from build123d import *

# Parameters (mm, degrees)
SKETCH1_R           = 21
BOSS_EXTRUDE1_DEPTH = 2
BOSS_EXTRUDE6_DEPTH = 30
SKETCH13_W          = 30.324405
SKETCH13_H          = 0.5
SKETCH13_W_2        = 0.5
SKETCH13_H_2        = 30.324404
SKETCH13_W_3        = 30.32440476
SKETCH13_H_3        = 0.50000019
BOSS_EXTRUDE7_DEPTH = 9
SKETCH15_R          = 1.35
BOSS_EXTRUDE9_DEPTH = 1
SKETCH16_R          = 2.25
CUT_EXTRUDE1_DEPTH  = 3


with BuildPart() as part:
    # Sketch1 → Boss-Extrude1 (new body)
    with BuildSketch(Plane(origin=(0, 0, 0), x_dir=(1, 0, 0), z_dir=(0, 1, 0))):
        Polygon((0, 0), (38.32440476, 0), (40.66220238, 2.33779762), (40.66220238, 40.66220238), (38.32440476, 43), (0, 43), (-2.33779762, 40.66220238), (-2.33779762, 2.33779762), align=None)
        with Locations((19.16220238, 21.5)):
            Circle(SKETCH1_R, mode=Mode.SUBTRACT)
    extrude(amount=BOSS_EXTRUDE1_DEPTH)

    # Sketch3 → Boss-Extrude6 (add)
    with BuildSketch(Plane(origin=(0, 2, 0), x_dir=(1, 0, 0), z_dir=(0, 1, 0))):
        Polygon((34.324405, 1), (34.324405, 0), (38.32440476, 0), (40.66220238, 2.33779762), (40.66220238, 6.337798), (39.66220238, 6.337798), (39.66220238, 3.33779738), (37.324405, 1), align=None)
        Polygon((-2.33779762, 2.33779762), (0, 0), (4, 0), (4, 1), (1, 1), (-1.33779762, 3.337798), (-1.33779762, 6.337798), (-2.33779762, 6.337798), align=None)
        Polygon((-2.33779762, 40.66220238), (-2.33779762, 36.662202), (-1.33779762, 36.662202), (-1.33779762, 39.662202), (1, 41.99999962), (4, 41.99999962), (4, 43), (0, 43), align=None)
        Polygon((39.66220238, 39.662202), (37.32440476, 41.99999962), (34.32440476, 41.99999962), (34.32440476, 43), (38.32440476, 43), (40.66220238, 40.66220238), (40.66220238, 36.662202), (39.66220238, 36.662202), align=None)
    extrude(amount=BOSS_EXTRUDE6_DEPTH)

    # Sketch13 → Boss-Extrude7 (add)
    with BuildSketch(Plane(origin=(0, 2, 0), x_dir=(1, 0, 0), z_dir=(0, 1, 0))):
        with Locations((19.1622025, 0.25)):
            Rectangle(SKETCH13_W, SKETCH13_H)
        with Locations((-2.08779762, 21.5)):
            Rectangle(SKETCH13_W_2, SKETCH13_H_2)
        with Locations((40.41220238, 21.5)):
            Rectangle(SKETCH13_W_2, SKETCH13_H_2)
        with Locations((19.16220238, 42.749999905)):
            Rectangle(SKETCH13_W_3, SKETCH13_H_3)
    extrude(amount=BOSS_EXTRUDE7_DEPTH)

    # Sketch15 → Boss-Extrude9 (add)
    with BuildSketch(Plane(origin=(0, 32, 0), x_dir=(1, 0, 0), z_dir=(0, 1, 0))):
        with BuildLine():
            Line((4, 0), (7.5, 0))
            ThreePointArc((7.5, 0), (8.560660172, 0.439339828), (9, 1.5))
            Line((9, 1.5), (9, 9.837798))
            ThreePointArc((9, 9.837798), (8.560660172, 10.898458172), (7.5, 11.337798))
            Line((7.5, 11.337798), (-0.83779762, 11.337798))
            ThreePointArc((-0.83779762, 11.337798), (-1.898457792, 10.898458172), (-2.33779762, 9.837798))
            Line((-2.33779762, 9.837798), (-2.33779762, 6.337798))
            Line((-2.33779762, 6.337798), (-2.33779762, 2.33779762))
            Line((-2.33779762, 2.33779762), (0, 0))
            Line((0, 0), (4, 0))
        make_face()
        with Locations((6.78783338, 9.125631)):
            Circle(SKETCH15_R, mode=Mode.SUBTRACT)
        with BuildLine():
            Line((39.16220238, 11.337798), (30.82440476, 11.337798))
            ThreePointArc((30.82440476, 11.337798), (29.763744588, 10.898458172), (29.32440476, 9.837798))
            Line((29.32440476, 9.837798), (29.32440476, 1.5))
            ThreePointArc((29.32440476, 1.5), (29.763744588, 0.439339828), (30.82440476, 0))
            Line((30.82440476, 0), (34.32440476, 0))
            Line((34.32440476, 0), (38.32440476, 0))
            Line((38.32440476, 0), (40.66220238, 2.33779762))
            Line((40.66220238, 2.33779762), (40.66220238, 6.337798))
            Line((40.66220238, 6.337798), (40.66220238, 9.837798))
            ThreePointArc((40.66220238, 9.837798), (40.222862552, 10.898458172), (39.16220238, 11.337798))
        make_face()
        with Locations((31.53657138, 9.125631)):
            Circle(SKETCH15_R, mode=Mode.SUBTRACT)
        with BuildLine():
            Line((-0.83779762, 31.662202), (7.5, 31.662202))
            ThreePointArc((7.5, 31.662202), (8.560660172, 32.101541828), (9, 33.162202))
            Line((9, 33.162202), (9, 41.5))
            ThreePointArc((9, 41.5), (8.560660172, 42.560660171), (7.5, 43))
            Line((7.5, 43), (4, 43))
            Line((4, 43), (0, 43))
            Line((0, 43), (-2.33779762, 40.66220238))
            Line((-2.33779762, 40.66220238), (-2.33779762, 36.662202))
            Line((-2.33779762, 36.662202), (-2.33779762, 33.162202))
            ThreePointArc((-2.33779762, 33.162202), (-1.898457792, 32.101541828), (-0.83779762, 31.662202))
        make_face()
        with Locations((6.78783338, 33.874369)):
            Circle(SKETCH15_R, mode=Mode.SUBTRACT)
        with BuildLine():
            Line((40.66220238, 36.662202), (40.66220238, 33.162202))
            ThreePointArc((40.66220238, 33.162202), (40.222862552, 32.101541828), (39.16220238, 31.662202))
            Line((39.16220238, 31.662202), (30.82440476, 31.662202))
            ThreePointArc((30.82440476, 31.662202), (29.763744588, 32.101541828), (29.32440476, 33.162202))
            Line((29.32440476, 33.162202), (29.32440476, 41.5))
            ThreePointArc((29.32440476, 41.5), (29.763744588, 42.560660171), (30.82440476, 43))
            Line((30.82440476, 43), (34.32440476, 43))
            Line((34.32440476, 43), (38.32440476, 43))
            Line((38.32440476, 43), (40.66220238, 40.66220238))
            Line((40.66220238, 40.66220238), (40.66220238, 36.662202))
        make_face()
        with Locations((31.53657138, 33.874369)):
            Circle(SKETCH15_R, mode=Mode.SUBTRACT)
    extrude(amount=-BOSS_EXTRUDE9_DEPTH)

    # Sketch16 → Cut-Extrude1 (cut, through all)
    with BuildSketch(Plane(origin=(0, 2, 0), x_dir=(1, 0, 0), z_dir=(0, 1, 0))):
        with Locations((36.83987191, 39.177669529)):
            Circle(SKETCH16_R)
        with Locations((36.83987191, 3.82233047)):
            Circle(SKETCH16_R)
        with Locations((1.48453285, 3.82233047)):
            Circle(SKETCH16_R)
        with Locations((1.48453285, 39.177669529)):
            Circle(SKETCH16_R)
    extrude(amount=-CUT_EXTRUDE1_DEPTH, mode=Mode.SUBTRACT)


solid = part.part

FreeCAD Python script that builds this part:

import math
import FreeCAD as App
import Part
import Sketcher

V = App.Vector
Q = App.Units.Quantity

doc = App.newDocument("Part")
params = doc.addObject("Spreadsheet::Sheet", "Params")
for row, (alias, value) in enumerate([
    ("sketch1_diameter", "42 mm"),
    ("pad1_length", "2 mm"),
    ("sketch2_width", "4 mm"),
    ("sketch2_width2", "1 mm"),
    ("pad2_length", "30 mm"),
    ("sketch3_width", "0.5 mm"),
    ("pad3_length", "9 mm"),
    ("sketch4_diameter", "2.7 mm"),
    ("sketch4_radius", "1.5 mm"),
    ("sketch4_width", "7.5 mm"),
    ("pad4_length", "1 mm"),
    ("sketch5_diameter", "4.5 mm"),
], start=1):
    params.set(f"A{row}", alias)
    params.set(f"B{row}", "=" + value)
    params.setAlias(f"B{row}", alias)

body = doc.addObject("PartDesign::Body", "Body")

# Sketch on XZ plane
sketch1 = doc.addObject("Sketcher::SketchObject", "Sketch")
body.addObject(sketch1)
sketch1.AttachmentSupport = (doc.XZ_Plane, [""])
sketch1.MapMode = "FlatFace"
sketch1.addGeometry([
    Part.LineSegment(V(0, 0, 0), V(38.324405, 0, 0)),  # 0
    Part.LineSegment(V(38.324405, 0, 0), V(40.662202, -2.337798, 0)),  # 1
    Part.LineSegment(V(40.662202, -2.337798, 0), V(40.662202, -40.662202, 0)),  # 2
    Part.LineSegment(V(40.662202, -40.662202, 0), V(38.324405, -43, 0)),  # 3
    Part.LineSegment(V(38.324405, -43, 0), V(0, -43, 0)),  # 4
    Part.LineSegment(V(0, -43, 0), V(-2.337798, -40.662202, 0)),  # 5
    Part.LineSegment(V(-2.337798, -40.662202, 0), V(-2.337798, -2.337798, 0)),  # 6
    Part.LineSegment(V(-2.337798, -2.337798, 0), V(0, 0, 0)),  # 7
    Part.Circle(V(19.162202, -21.5, 0), V(0, 0, 1), 21),  # 8
], False)
sketch1.addConstraint([
    Sketcher.Constraint("Coincident", 0, 2, 1, 1),
    Sketcher.Constraint("Coincident", 1, 2, 2, 1),
    Sketcher.Constraint("Coincident", 2, 2, 3, 1),
    Sketcher.Constraint("Coincident", 3, 2, 4, 1),
    Sketcher.Constraint("Coincident", 4, 2, 5, 1),
    Sketcher.Constraint("Coincident", 5, 2, 6, 1),
    Sketcher.Constraint("Coincident", 6, 2, 7, 1),
    Sketcher.Constraint("Coincident", 7, 2, 0, 1),
    Sketcher.Constraint("Horizontal", 0),
    Sketcher.Constraint("Vertical", 2),
    Sketcher.Constraint("Horizontal", 4),
    Sketcher.Constraint("Vertical", 6),
    Sketcher.Constraint("Coincident", 7, 2, -1, 1),
    Sketcher.Constraint("PointOnObject", 4, 2, -2),
    Sketcher.Constraint("Perpendicular", 1, 3),
    Sketcher.Constraint("Perpendicular", 3, 5),
    Sketcher.Constraint("Perpendicular", 5, 7),
    Sketcher.Constraint("Horizontal", 2, 2, 5, 2),
    Sketcher.Constraint("Horizontal", 1, 2, 6, 2),
    Sketcher.Constraint("Vertical", 0, 2, 3, 2),
    Sketcher.Constraint("Equal", 4, 2),
    Sketcher.Constraint("Diameter", 8, Q("42 mm")),
    Sketcher.Constraint("DistanceY", 3, 2, -1, 1, Q("43 mm")),
    Sketcher.Constraint("DistanceY", 8, 3, -1, 1, Q("21.5 mm")),
    Sketcher.Constraint("DistanceX", 8, 3, 1, 2, Q("21.5 mm")),
    Sketcher.Constraint("DistanceX", 0, 1, 0, 2, Q("38.324405 mm")),
])
sketch1.setExpression("Constraints[21]", "Params.sketch1_diameter")
pad1 = doc.addObject("PartDesign::Pad", "Pad")
body.addObject(pad1)
pad1.Profile = sketch1
pad1.setExpression("Length", "Params.pad1_length")
pad1.Reversed = True

# Sketch on XZ plane
sketch2 = doc.addObject("Sketcher::SketchObject", "Sketch001")
body.addObject(sketch2)
sketch2.AttachmentSupport = (doc.XZ_Plane, [""])
sketch2.MapMode = "FlatFace"
sketch2.AttachmentOffset = App.Placement(V(0, 0, -2), App.Rotation())
sketch2.addGeometry([
    Part.LineSegment(V(34.324405, -1, 0), V(34.324405, 0, 0)),  # 0
    Part.LineSegment(V(34.324405, 0, 0), V(38.324405, 0, 0)),  # 1
    Part.LineSegment(V(38.324405, 0, 0), V(40.662202, -2.337798, 0)),  # 2
    Part.LineSegment(V(40.662202, -2.337798, 0), V(40.662202, -6.337798, 0)),  # 3
    Part.LineSegment(V(40.662202, -6.337798, 0), V(39.662202, -6.337798, 0)),  # 4
    Part.LineSegment(V(39.662202, -6.337798, 0), V(39.662202, -3.337797, 0)),  # 5
    Part.LineSegment(V(39.662202, -3.337797, 0), V(37.324405, -1, 0)),  # 6
    Part.LineSegment(V(37.324405, -1, 0), V(34.324405, -1, 0)),  # 7
    Part.LineSegment(V(-2.337798, -2.337798, 0), V(0, 0, 0)),  # 8
    Part.LineSegment(V(0, 0, 0), V(4, 0, 0)),  # 9
    Part.LineSegment(V(4, 0, 0), V(4, -1, 0)),  # 10
    Part.LineSegment(V(4, -1, 0), V(1, -1, 0)),  # 11
    Part.LineSegment(V(1, -1, 0), V(-1.337798, -3.337798, 0)),  # 12
    Part.LineSegment(V(-1.337798, -3.337798, 0), V(-1.337798, -6.337798, 0)),  # 13
    Part.LineSegment(V(-1.337798, -6.337798, 0), V(-2.337798, -6.337798, 0)),  # 14
    Part.LineSegment(V(-2.337798, -6.337798, 0), V(-2.337798, -2.337798, 0)),  # 15
    Part.LineSegment(V(-2.337798, -40.662202, 0), V(-2.337798, -36.662202, 0)),  # 16
    Part.LineSegment(V(-2.337798, -36.662202, 0), V(-1.337798, -36.662202, 0)),  # 17
    Part.LineSegment(V(-1.337798, -36.662202, 0), V(-1.337798, -39.662202, 0)),  # 18
    Part.LineSegment(V(-1.337798, -39.662202, 0), V(1, -42, 0)),  # 19
    Part.LineSegment(V(1, -42, 0), V(4, -42, 0)),  # 20
    Part.LineSegment(V(4, -42, 0), V(4, -43, 0)),  # 21
    Part.LineSegment(V(4, -43, 0), V(0, -43, 0)),  # 22
    Part.LineSegment(V(0, -43, 0), V(-2.337798, -40.662202, 0)),  # 23
    Part.LineSegment(V(37.324405, -42, 0), V(39.662202, -39.662202, 0)),  # 24
    Part.LineSegment(V(39.662202, -39.662202, 0), V(39.662202, -36.662202, 0)),  # 25
    Part.LineSegment(V(39.662202, -36.662202, 0), V(40.662202, -36.662202, 0)),  # 26
    Part.LineSegment(V(40.662202, -36.662202, 0), V(40.662202, -40.662202, 0)),  # 27
    Part.LineSegment(V(40.662202, -40.662202, 0), V(38.324405, -43, 0)),  # 28
    Part.LineSegment(V(38.324405, -43, 0), V(34.324405, -43, 0)),  # 29
    Part.LineSegment(V(34.324405, -43, 0), V(34.324405, -42, 0)),  # 30
    Part.LineSegment(V(34.324405, -42, 0), V(37.324405, -42, 0)),  # 31
], False)
sketch2.addConstraint([
    Sketcher.Constraint("Coincident", 0, 2, 1, 1),
    Sketcher.Constraint("Coincident", 1, 2, 2, 1),
    Sketcher.Constraint("Coincident", 2, 2, 3, 1),
    Sketcher.Constraint("Coincident", 3, 2, 4, 1),
    Sketcher.Constraint("Coincident", 4, 2, 5, 1),
    Sketcher.Constraint("Coincident", 5, 2, 6, 1),
    Sketcher.Constraint("Coincident", 6, 2, 7, 1),
    Sketcher.Constraint("Coincident", 7, 2, 0, 1),
    Sketcher.Constraint("Coincident", 8, 2, 9, 1),
    Sketcher.Constraint("Coincident", 9, 2, 10, 1),
    Sketcher.Constraint("Coincident", 10, 2, 11, 1),
    Sketcher.Constraint("Coincident", 11, 2, 12, 1),
    Sketcher.Constraint("Coincident", 12, 2, 13, 1),
    Sketcher.Constraint("Coincident", 13, 2, 14, 1),
    Sketcher.Constraint("Coincident", 14, 2, 15, 1),
    Sketcher.Constraint("Coincident", 15, 2, 8, 1),
    Sketcher.Constraint("Coincident", 16, 2, 17, 1),
    Sketcher.Constraint("Coincident", 17, 2, 18, 1),
    Sketcher.Constraint("Coincident", 18, 2, 19, 1),
    Sketcher.Constraint("Coincident", 19, 2, 20, 1),
    Sketcher.Constraint("Coincident", 20, 2, 21, 1),
    Sketcher.Constraint("Coincident", 21, 2, 22, 1),
    Sketcher.Constraint("Coincident", 22, 2, 23, 1),
    Sketcher.Constraint("Coincident", 23, 2, 16, 1),
    Sketcher.Constraint("Coincident", 24, 2, 25, 1),
    Sketcher.Constraint("Coincident", 25, 2, 26, 1),
    Sketcher.Constraint("Coincident", 26, 2, 27, 1),
    Sketcher.Constraint("Coincident", 27, 2, 28, 1),
    Sketcher.Constraint("Coincident", 28, 2, 29, 1),
    Sketcher.Constraint("Coincident", 29, 2, 30, 1),
    Sketcher.Constraint("Coincident", 30, 2, 31, 1),
    Sketcher.Constraint("Coincident", 31, 2, 24, 1),
    Sketcher.Constraint("Vertical", 0),
    Sketcher.Constraint("Horizontal", 1),
    Sketcher.Constraint("Vertical", 3),
    Sketcher.Constraint("Horizontal", 4),
    Sketcher.Constraint("Vertical", 5),
    Sketcher.Constraint("Horizontal", 7),
    Sketcher.Constraint("Horizontal", 9),
    Sketcher.Constraint("Vertical", 10),
    Sketcher.Constraint("Horizontal", 11),
    Sketcher.Constraint("Vertical", 13),
    Sketcher.Constraint("Horizontal", 14),
    Sketcher.Constraint("Vertical", 15),
    Sketcher.Constraint("Vertical", 16),
    Sketcher.Constraint("Horizontal", 17),
    Sketcher.Constraint("Vertical", 18),
    Sketcher.Constraint("Horizontal", 20),
    Sketcher.Constraint("Vertical", 21),
    Sketcher.Constraint("Horizontal", 22),
    Sketcher.Constraint("Vertical", 25),
    Sketcher.Constraint("Horizontal", 26),
    Sketcher.Constraint("Vertical", 27),
    Sketcher.Constraint("Horizontal", 29),
    Sketcher.Constraint("Vertical", 30),
    Sketcher.Constraint("Horizontal", 31),
    Sketcher.Constraint("Coincident", 8, 2, -1, 1),
    Sketcher.Constraint("PointOnObject", 0, 2, -1),
    Sketcher.Constraint("PointOnObject", 22, 2, -2),
    Sketcher.Constraint("Parallel", 2, 6),
    Sketcher.Constraint("Perpendicular", 6, 8),
    Sketcher.Constraint("Parallel", 8, 12),
    Sketcher.Constraint("Perpendicular", 12, 19),
    Sketcher.Constraint("Parallel", 19, 23),
    Sketcher.Constraint("Perpendicular", 23, 24),
    Sketcher.Constraint("Parallel", 24, 28),
    Sketcher.Constraint("Horizontal", 7, 2, 10, 2),
    Sketcher.Constraint("Horizontal", 5, 2, 12, 2),
    Sketcher.Constraint("Horizontal", 4, 2, 13, 2),
    Sketcher.Constraint("Horizontal", 2, 2, 15, 2),
    Sketcher.Constraint("Horizontal", 18, 2, 24, 2),
    Sketcher.Constraint("Horizontal", 17, 2, 25, 2),
    Sketcher.Constraint("Horizontal", 23, 2, 27, 2),
    Sketcher.Constraint("Horizontal", 22, 2, 28, 2),
    Sketcher.Constraint("Horizontal", 20, 2, 30, 2),
    Sketcher.Constraint("Vertical", 15, 2, 16, 2),
    Sketcher.Constraint("Vertical", 13, 2, 17, 2),
    Sketcher.Constraint("Vertical", 11, 2, 19, 2),
    Sketcher.Constraint("Vertical", 10, 2, 20, 2),
    Sketcher.Constraint("Vertical", 5, 2, 24, 2),
    Sketcher.Constraint("Vertical", 3, 2, 26, 2),
    Sketcher.Constraint("Vertical", 1, 2, 28, 2),
    Sketcher.Constraint("Vertical", 7, 2, 29, 2),
    Sketcher.Constraint("Equal", 1, 9),
    Sketcher.Constraint("Equal", 7, 11),
    Sketcher.Constraint("Equal", 26, 0),
    Sketcher.Constraint("Equal", 29, 3),
    Sketcher.Constraint("Equal", 15, 16),
    Sketcher.Constraint("Equal", 13, 18),
    Sketcher.Constraint("Equal", 2, 6),
    Sketcher.Constraint("DistanceX", 1, 1, 1, 2, Q("4 mm")),
    Sketcher.Constraint("DistanceX", 4, 2, 4, 1, Q("1 mm")),
    Sketcher.Constraint("DistanceY", 19, 2, -1, 1, Q("42 mm")),
    Sketcher.Constraint("DistanceY", 3, 2, -1, 1, Q("6.337798 mm")),
    Sketcher.Constraint("DistanceX", -1, 1, 0, 2, Q("34.324405 mm")),
])
sketch2.setExpression("Constraints[90]", "Params.sketch2_width")
sketch2.setExpression("Constraints[91]", "Params.sketch2_width2")
pad2 = doc.addObject("PartDesign::Pad", "Pad001")
body.addObject(pad2)
pad2.Profile = sketch2
pad2.setExpression("Length", "Params.pad2_length")
pad2.Reversed = True

# Sketch on XZ plane
sketch3 = doc.addObject("Sketcher::SketchObject", "Sketch002")
body.addObject(sketch3)
sketch3.AttachmentSupport = (doc.XZ_Plane, [""])
sketch3.MapMode = "FlatFace"
sketch3.AttachmentOffset = App.Placement(V(0, 0, -2), App.Rotation())
sketch3.addGeometry([
    Part.LineSegment(V(4, -0.5, 0), V(4, 0, 0)),  # 0
    Part.LineSegment(V(4, 0, 0), V(34.324405, 0, 0)),  # 1
    Part.LineSegment(V(34.324405, 0, 0), V(34.324405, -0.5, 0)),  # 2
    Part.LineSegment(V(34.324405, -0.5, 0), V(4, -0.5, 0)),  # 3
    Part.LineSegment(V(-2.337798, -36.662202, 0), V(-2.337798, -6.337798, 0)),  # 4
    Part.LineSegment(V(-2.337798, -6.337798, 0), V(-1.837798, -6.337798, 0)),  # 5
    Part.LineSegment(V(-1.837798, -6.337798, 0), V(-1.837798, -36.662202, 0)),  # 6
    Part.LineSegment(V(-1.837798, -36.662202, 0), V(-2.337798, -36.662202, 0)),  # 7
    Part.LineSegment(V(40.162202, -36.662202, 0), V(40.162202, -6.337798, 0)),  # 8
    Part.LineSegment(V(40.162202, -6.337798, 0), V(40.662202, -6.337798, 0)),  # 9
    Part.LineSegment(V(40.662202, -6.337798, 0), V(40.662202, -36.662202, 0)),  # 10
    Part.LineSegment(V(40.662202, -36.662202, 0), V(40.162202, -36.662202, 0)),  # 11
    Part.LineSegment(V(4, -43, 0), V(4, -42.5, 0)),  # 12
    Part.LineSegment(V(4, -42.5, 0), V(34.324405, -42.5, 0)),  # 13
    Part.LineSegment(V(34.324405, -42.5, 0), V(34.324405, -43, 0)),  # 14
    Part.LineSegment(V(34.324405, -43, 0), V(4, -43, 0)),  # 15
], False)
sketch3.addConstraint([
    Sketcher.Constraint("Coincident", 0, 2, 1, 1),
    Sketcher.Constraint("Coincident", 1, 2, 2, 1),
    Sketcher.Constraint("Coincident", 2, 2, 3, 1),
    Sketcher.Constraint("Coincident", 3, 2, 0, 1),
    Sketcher.Constraint("Coincident", 4, 2, 5, 1),
    Sketcher.Constraint("Coincident", 5, 2, 6, 1),
    Sketcher.Constraint("Coincident", 6, 2, 7, 1),
    Sketcher.Constraint("Coincident", 7, 2, 4, 1),
    Sketcher.Constraint("Coincident", 8, 2, 9, 1),
    Sketcher.Constraint("Coincident", 9, 2, 10, 1),
    Sketcher.Constraint("Coincident", 10, 2, 11, 1),
    Sketcher.Constraint("Coincident", 11, 2, 8, 1),
    Sketcher.Constraint("Coincident", 12, 2, 13, 1),
    Sketcher.Constraint("Coincident", 13, 2, 14, 1),
    Sketcher.Constraint("Coincident", 14, 2, 15, 1),
    Sketcher.Constraint("Coincident", 15, 2, 12, 1),
    Sketcher.Constraint("Vertical", 0),
    Sketcher.Constraint("Horizontal", 1),
    Sketcher.Constraint("Vertical", 2),
    Sketcher.Constraint("Horizontal", 3),
    Sketcher.Constraint("Vertical", 4),
    Sketcher.Constraint("Horizontal", 5),
    Sketcher.Constraint("Vertical", 6),
    Sketcher.Constraint("Horizontal", 7),
    Sketcher.Constraint("Vertical", 8),
    Sketcher.Constraint("Horizontal", 9),
    Sketcher.Constraint("Vertical", 10),
    Sketcher.Constraint("Horizontal", 11),
    Sketcher.Constraint("Vertical", 12),
    Sketcher.Constraint("Horizontal", 13),
    Sketcher.Constraint("Vertical", 14),
    Sketcher.Constraint("Horizontal", 15),
    Sketcher.Constraint("PointOnObject", 0, 2, -1),
    Sketcher.Constraint("Horizontal", 5, 2, 8, 2),
    Sketcher.Constraint("Horizontal", 7, 2, 10, 2),
    Sketcher.Constraint("Vertical", 3, 2, 12, 2),
    Sketcher.Constraint("Vertical", 2, 2, 13, 2),
    Sketcher.Constraint("Equal", 7, 9),
    Sketcher.Constraint("Equal", 11, 0),
    Sketcher.Constraint("Equal", 15, 4),
    Sketcher.Constraint("Equal", 2, 12),
    Sketcher.Constraint("DistanceX", 5, 1, 5, 2, Q("0.5 mm")),
    Sketcher.Constraint("DistanceX", -1, 1, 0, 2, Q("4 mm")),
    Sketcher.Constraint("DistanceY", 14, 2, -1, 1, Q("43 mm")),
    Sketcher.Constraint("DistanceX", 5, 2, 8, 2, Q("42 mm")),
    Sketcher.Constraint("DistanceY", 4, 2, -1, 1, Q("6.337798 mm")),
    Sketcher.Constraint("DistanceX", 1, 1, 1, 2, Q("30.324405 mm")),
    Sketcher.Constraint("DistanceX", 4, 2, -1, 1, Q("2.337798 mm")),
])
sketch3.setExpression("Constraints[41]", "Params.sketch3_width")
pad3 = doc.addObject("PartDesign::Pad", "Pad002")
body.addObject(pad3)
pad3.Profile = sketch3
pad3.setExpression("Length", "Params.pad3_length")
pad3.Reversed = True

# Sketch on XZ plane
sketch4 = doc.addObject("Sketcher::SketchObject", "Sketch003")
body.addObject(sketch4)
sketch4.AttachmentSupport = (doc.XZ_Plane, [""])
sketch4.MapMode = "FlatFace"
sketch4.AttachmentOffset = App.Placement(V(0, 0, -32), App.Rotation())
sketch4.addGeometry([
    Part.ArcOfCircle(Part.Circle(V(7.5, -1.5, 0), V(0, 0, 1), 1.5), math.radians(0), math.radians(90)),  # 0
    Part.LineSegment(V(9, -1.5, 0), V(9, -9.837798, 0)),  # 1
    Part.ArcOfCircle(Part.Circle(V(7.5, -9.837798, 0), V(0, 0, 1), 1.5), math.radians(-90), math.radians(0)),  # 2
    Part.LineSegment(V(7.5, -11.337798, 0), V(-0.837798, -11.337798, 0)),  # 3
    Part.ArcOfCircle(Part.Circle(V(-0.837798, -9.837798, 0), V(0, 0, 1), 1.5), math.radians(180), math.radians(270)),  # 4
    Part.LineSegment(V(-2.337798, -9.837798, 0), V(-2.337798, -2.337798, 0)),  # 5
    Part.LineSegment(V(-2.337798, -2.337798, 0), V(0, 0, 0)),  # 6
    Part.LineSegment(V(0, 0, 0), V(7.5, 0, 0)),  # 7
    Part.Circle(V(6.787833, -9.125631, 0), V(0, 0, 1), 1.35),  # 8
    Part.LineSegment(V(39.162202, -11.337798, 0), V(30.824405, -11.337798, 0)),  # 9
    Part.ArcOfCircle(Part.Circle(V(30.824405, -9.837798, 0), V(0, 0, 1), 1.5), math.radians(180), math.radians(270)),  # 10
    Part.LineSegment(V(29.324405, -9.837798, 0), V(29.324405, -1.5, 0)),  # 11
    Part.ArcOfCircle(Part.Circle(V(30.824405, -1.5, 0), V(0, 0, 1), 1.5), math.radians(90), math.radians(180)),  # 12
    Part.LineSegment(V(30.824405, 0, 0), V(38.324405, 0, 0)),  # 13
    Part.LineSegment(V(38.324405, 0, 0), V(40.662202, -2.337798, 0)),  # 14
    Part.LineSegment(V(40.662202, -2.337798, 0), V(40.662202, -9.837798, 0)),  # 15
    Part.ArcOfCircle(Part.Circle(V(39.162202, -9.837798, 0), V(0, 0, 1), 1.5), math.radians(-90), math.radians(0)),  # 16
    Part.Circle(V(31.536571, -9.125631, 0), V(0, 0, 1), 1.35),  # 17
    Part.LineSegment(V(-0.837798, -31.662202, 0), V(7.5, -31.662202, 0)),  # 18
    Part.ArcOfCircle(Part.Circle(V(7.5, -33.162202, 0), V(0, 0, 1), 1.5), math.radians(0), math.radians(90)),  # 19
    Part.LineSegment(V(9, -33.162202, 0), V(9, -41.5, 0)),  # 20
    Part.ArcOfCircle(Part.Circle(V(7.5, -41.5, 0), V(0, 0, 1), 1.5), math.radians(-90), math.radians(0)),  # 21
    Part.LineSegment(V(7.5, -43, 0), V(0, -43, 0)),  # 22
    Part.LineSegment(V(0, -43, 0), V(-2.337798, -40.662202, 0)),  # 23
    Part.LineSegment(V(-2.337798, -40.662202, 0), V(-2.337798, -33.162202, 0)),  # 24
    Part.ArcOfCircle(Part.Circle(V(-0.837798, -33.162202, 0), V(0, 0, 1), 1.5), math.radians(90), math.radians(180)),  # 25
    Part.Circle(V(6.787833, -33.874369, 0), V(0, 0, 1), 1.35),  # 26
    Part.ArcOfCircle(Part.Circle(V(39.162202, -33.162202, 0), V(0, 0, 1), 1.5), math.radians(0), math.radians(90)),  # 27
    Part.LineSegment(V(40.662202, -33.162202, 0), V(40.662202, -40.662202, 0)),  # 28
    Part.LineSegment(V(40.662202, -40.662202, 0), V(38.324405, -43, 0)),  # 29
    Part.LineSegment(V(38.324405, -43, 0), V(30.824405, -43, 0)),  # 30
    Part.ArcOfCircle(Part.Circle(V(30.824405, -41.5, 0), V(0, 0, 1), 1.5), math.radians(-180), math.radians(-90)),  # 31
    Part.LineSegment(V(29.324405, -41.5, 0), V(29.324405, -33.162202, 0)),  # 32
    Part.ArcOfCircle(Part.Circle(V(30.824405, -33.162202, 0), V(0, 0, 1), 1.5), math.radians(90), math.radians(180)),  # 33
    Part.LineSegment(V(30.824405, -31.662202, 0), V(39.162202, -31.662202, 0)),  # 34
    Part.Circle(V(31.536571, -33.874369, 0), V(0, 0, 1), 1.35),  # 35
], False)
sketch4.addConstraint([
    Sketcher.Constraint("Tangent", 0, 1, 1, 1),
    Sketcher.Constraint("Tangent", 1, 2, 2, 2),
    Sketcher.Constraint("Tangent", 2, 1, 3, 1),
    Sketcher.Constraint("Tangent", 3, 2, 4, 2),
    Sketcher.Constraint("Tangent", 4, 1, 5, 1),
    Sketcher.Constraint("Coincident", 5, 2, 6, 1),
    Sketcher.Constraint("Coincident", 6, 2, 7, 1),
    Sketcher.Constraint("Tangent", 7, 2, 0, 2),
    Sketcher.Constraint("Tangent", 9, 2, 10, 2),
    Sketcher.Constraint("Tangent", 10, 1, 11, 1),
    Sketcher.Constraint("Tangent", 11, 2, 12, 2),
    Sketcher.Constraint("Tangent", 12, 1, 13, 1),
    Sketcher.Constraint("Coincident", 13, 2, 14, 1),
    Sketcher.Constraint("Coincident", 14, 2, 15, 1),
    Sketcher.Constraint("Tangent", 15, 2, 16, 2),
    Sketcher.Constraint("Tangent", 16, 1, 9, 1),
    Sketcher.Constraint("Tangent", 18, 2, 19, 2),
    Sketcher.Constraint("Tangent", 19, 1, 20, 1),
    Sketcher.Constraint("Tangent", 20, 2, 21, 2),
    Sketcher.Constraint("Tangent", 21, 1, 22, 1),
    Sketcher.Constraint("Coincident", 22, 2, 23, 1),
    Sketcher.Constraint("Coincident", 23, 2, 24, 1),
    Sketcher.Constraint("Tangent", 24, 2, 25, 2),
    Sketcher.Constraint("Tangent", 25, 1, 18, 1),
    Sketcher.Constraint("Tangent", 27, 1, 28, 1),
    Sketcher.Constraint("Coincident", 28, 2, 29, 1),
    Sketcher.Constraint("Coincident", 29, 2, 30, 1),
    Sketcher.Constraint("Tangent", 30, 2, 31, 2),
    Sketcher.Constraint("Tangent", 31, 1, 32, 1),
    Sketcher.Constraint("Tangent", 32, 2, 33, 2),
    Sketcher.Constraint("Tangent", 33, 1, 34, 1),
    Sketcher.Constraint("Tangent", 34, 2, 27, 2),
    Sketcher.Constraint("Vertical", 1),
    Sketcher.Constraint("Horizontal", 3),
    Sketcher.Constraint("Vertical", 5),
    Sketcher.Constraint("Horizontal", 7),
    Sketcher.Constraint("Horizontal", 9),
    Sketcher.Constraint("Vertical", 11),
    Sketcher.Constraint("Horizontal", 13),
    Sketcher.Constraint("Vertical", 15),
    Sketcher.Constraint("Horizontal", 18),
    Sketcher.Constraint("Vertical", 20),
    Sketcher.Constraint("Horizontal", 22),
    Sketcher.Constraint("Vertical", 24),
    Sketcher.Constraint("Vertical", 28),
    Sketcher.Constraint("Horizontal", 30),
    Sketcher.Constraint("Vertical", 32),
    Sketcher.Constraint("Horizontal", 34),
    Sketcher.Constraint("Coincident", 6, 2, -1, 1),
    Sketcher.Constraint("Equal", 0, 2),
    Sketcher.Constraint("Equal", 2, 4),
    Sketcher.Constraint("Equal", 4, 10),
    Sketcher.Constraint("Equal", 10, 12),
    Sketcher.Constraint("Equal", 12, 16),
    Sketcher.Constraint("Equal", 8, 17),
    Sketcher.Constraint("Equal", 16, 19),
    Sketcher.Constraint("Equal", 19, 21),
    Sketcher.Constraint("Equal", 21, 25),
    Sketcher.Constraint("Equal", 17, 26),
    Sketcher.Constraint("Equal", 25, 27),
    Sketcher.Constraint("Equal", 27, 31),
    Sketcher.Constraint("Equal", 31, 33),
    Sketcher.Constraint("Equal", 26, 35),
    Sketcher.Constraint("PointOnObject", 12, 1, -1),
    Sketcher.Constraint("PointOnObject", 22, 2, -2),
    Sketcher.Constraint("Perpendicular", 6, 14),
    Sketcher.Constraint("Parallel", 14, 23),
    Sketcher.Constraint("Perpendicular", 23, 29),
    Sketcher.Constraint("Horizontal", 4, 3, 10, 3),
    Sketcher.Constraint("Horizontal", 8, 3, 17, 3),
    Sketcher.Constraint("Horizontal", 25, 3, 27, 3),
    Sketcher.Constraint("Horizontal", 21, 3, 31, 3),
    Sketcher.Constraint("Horizontal", 26, 3, 35, 3),
    Sketcher.Constraint("Horizontal", 5, 2, 14, 2),
    Sketcher.Constraint("Horizontal", 23, 2, 28, 2),
    Sketcher.Constraint("Vertical", 2, 3, 19, 3),
    Sketcher.Constraint("Vertical", 4, 3, 25, 3),
    Sketcher.Constraint("Vertical", 8, 3, 26, 3),
    Sketcher.Constraint("Vertical", 16, 3, 27, 3),
    Sketcher.Constraint("Vertical", 12, 3, 31, 3),
    Sketcher.Constraint("Vertical", 17, 3, 35, 3),
    Sketcher.Constraint("Vertical", 13, 2, 29, 2),
    Sketcher.Constraint("Equal", 3, 9),
    Sketcher.Constraint("Equal", 34, 1),
    Sketcher.Constraint("Equal", 11, 20),
    Sketcher.Constraint("Diameter", 8, Q("2.7 mm")),
    Sketcher.Constraint("Radius", 0, Q("1.5 mm")),
    Sketcher.Constraint("DistanceX", 7, 1, 7, 2, Q("7.5 mm")),
    Sketcher.Constraint("DistanceY", 21, 1, -1, 1, Q("43 mm")),
    Sketcher.Constraint("DistanceY", 2, 3, -1, 1, Q("9.837798 mm")),
    Sketcher.Constraint("DistanceY", 8, 3, -1, 1, Q("9.125631 mm")),
    Sketcher.Constraint("DistanceX", -1, 1, 17, 3, Q("31.536571 mm")),
    Sketcher.Constraint("DistanceY", 26, 3, -1, 1, Q("33.874369 mm")),
    Sketcher.Constraint("DistanceX", 4, 3, 8, 3, Q("7.625631 mm")),
    Sketcher.Constraint("DistanceX", 8, 3, 10, 3, Q("24.036571 mm")),
])
sketch4.setExpression("Constraints[85]", "Params.sketch4_diameter")
sketch4.setExpression("Constraints[86]", "Params.sketch4_radius")
sketch4.setExpression("Constraints[87]", "Params.sketch4_width")
pad4 = doc.addObject("PartDesign::Pad", "Pad003")
body.addObject(pad4)
pad4.Profile = sketch4
pad4.setExpression("Length", "Params.pad4_length")

# Sketch on XZ plane
sketch5 = doc.addObject("Sketcher::SketchObject", "Sketch004")
body.addObject(sketch5)
sketch5.AttachmentSupport = (doc.XZ_Plane, [""])
sketch5.MapMode = "FlatFace"
sketch5.AttachmentOffset = App.Placement(V(0, 0, -2), App.Rotation())
sketch5.addGeometry([
    Part.Circle(V(36.839872, -39.17767, 0), V(0, 0, 1), 2.25),
    Part.Circle(V(36.839872, -3.82233, 0), V(0, 0, 1), 2.25),
    Part.Circle(V(1.484533, -3.82233, 0), V(0, 0, 1), 2.25),
    Part.Circle(V(1.484533, -39.17767, 0), V(0, 0, 1), 2.25),
], False)
sketch5.addConstraint([
    Sketcher.Constraint("Equal", 0, 1),
    Sketcher.Constraint("Equal", 1, 2),
    Sketcher.Constraint("Equal", 2, 3),
    Sketcher.Constraint("Horizontal", 1, 3, 2, 3),
    Sketcher.Constraint("Horizontal", 0, 3, 3, 3),
    Sketcher.Constraint("Vertical", 0, 3, 1, 3),
    Sketcher.Constraint("Vertical", 2, 3, 3, 3),
    Sketcher.Constraint("Diameter", 0, Q("4.5 mm")),
    Sketcher.Constraint("DistanceX", -1, 1, 0, 3, Q("36.839872 mm")),
    Sketcher.Constraint("DistanceY", 0, 3, -1, 1, Q("39.17767 mm")),
    Sketcher.Constraint("DistanceY", 1, 3, -1, 1, Q("3.82233 mm")),
    Sketcher.Constraint("DistanceX", 2, 3, 1, 3, Q("35.355339 mm")),
])
sketch5.setExpression("Constraints[7]", "Params.sketch5_diameter")
pocket1 = doc.addObject("PartDesign::Pocket", "Pocket")
body.addObject(pocket1)
pocket1.Profile = sketch5
pocket1.Type = "ThroughAll"
pocket1.Reversed = True

doc.recompute()
